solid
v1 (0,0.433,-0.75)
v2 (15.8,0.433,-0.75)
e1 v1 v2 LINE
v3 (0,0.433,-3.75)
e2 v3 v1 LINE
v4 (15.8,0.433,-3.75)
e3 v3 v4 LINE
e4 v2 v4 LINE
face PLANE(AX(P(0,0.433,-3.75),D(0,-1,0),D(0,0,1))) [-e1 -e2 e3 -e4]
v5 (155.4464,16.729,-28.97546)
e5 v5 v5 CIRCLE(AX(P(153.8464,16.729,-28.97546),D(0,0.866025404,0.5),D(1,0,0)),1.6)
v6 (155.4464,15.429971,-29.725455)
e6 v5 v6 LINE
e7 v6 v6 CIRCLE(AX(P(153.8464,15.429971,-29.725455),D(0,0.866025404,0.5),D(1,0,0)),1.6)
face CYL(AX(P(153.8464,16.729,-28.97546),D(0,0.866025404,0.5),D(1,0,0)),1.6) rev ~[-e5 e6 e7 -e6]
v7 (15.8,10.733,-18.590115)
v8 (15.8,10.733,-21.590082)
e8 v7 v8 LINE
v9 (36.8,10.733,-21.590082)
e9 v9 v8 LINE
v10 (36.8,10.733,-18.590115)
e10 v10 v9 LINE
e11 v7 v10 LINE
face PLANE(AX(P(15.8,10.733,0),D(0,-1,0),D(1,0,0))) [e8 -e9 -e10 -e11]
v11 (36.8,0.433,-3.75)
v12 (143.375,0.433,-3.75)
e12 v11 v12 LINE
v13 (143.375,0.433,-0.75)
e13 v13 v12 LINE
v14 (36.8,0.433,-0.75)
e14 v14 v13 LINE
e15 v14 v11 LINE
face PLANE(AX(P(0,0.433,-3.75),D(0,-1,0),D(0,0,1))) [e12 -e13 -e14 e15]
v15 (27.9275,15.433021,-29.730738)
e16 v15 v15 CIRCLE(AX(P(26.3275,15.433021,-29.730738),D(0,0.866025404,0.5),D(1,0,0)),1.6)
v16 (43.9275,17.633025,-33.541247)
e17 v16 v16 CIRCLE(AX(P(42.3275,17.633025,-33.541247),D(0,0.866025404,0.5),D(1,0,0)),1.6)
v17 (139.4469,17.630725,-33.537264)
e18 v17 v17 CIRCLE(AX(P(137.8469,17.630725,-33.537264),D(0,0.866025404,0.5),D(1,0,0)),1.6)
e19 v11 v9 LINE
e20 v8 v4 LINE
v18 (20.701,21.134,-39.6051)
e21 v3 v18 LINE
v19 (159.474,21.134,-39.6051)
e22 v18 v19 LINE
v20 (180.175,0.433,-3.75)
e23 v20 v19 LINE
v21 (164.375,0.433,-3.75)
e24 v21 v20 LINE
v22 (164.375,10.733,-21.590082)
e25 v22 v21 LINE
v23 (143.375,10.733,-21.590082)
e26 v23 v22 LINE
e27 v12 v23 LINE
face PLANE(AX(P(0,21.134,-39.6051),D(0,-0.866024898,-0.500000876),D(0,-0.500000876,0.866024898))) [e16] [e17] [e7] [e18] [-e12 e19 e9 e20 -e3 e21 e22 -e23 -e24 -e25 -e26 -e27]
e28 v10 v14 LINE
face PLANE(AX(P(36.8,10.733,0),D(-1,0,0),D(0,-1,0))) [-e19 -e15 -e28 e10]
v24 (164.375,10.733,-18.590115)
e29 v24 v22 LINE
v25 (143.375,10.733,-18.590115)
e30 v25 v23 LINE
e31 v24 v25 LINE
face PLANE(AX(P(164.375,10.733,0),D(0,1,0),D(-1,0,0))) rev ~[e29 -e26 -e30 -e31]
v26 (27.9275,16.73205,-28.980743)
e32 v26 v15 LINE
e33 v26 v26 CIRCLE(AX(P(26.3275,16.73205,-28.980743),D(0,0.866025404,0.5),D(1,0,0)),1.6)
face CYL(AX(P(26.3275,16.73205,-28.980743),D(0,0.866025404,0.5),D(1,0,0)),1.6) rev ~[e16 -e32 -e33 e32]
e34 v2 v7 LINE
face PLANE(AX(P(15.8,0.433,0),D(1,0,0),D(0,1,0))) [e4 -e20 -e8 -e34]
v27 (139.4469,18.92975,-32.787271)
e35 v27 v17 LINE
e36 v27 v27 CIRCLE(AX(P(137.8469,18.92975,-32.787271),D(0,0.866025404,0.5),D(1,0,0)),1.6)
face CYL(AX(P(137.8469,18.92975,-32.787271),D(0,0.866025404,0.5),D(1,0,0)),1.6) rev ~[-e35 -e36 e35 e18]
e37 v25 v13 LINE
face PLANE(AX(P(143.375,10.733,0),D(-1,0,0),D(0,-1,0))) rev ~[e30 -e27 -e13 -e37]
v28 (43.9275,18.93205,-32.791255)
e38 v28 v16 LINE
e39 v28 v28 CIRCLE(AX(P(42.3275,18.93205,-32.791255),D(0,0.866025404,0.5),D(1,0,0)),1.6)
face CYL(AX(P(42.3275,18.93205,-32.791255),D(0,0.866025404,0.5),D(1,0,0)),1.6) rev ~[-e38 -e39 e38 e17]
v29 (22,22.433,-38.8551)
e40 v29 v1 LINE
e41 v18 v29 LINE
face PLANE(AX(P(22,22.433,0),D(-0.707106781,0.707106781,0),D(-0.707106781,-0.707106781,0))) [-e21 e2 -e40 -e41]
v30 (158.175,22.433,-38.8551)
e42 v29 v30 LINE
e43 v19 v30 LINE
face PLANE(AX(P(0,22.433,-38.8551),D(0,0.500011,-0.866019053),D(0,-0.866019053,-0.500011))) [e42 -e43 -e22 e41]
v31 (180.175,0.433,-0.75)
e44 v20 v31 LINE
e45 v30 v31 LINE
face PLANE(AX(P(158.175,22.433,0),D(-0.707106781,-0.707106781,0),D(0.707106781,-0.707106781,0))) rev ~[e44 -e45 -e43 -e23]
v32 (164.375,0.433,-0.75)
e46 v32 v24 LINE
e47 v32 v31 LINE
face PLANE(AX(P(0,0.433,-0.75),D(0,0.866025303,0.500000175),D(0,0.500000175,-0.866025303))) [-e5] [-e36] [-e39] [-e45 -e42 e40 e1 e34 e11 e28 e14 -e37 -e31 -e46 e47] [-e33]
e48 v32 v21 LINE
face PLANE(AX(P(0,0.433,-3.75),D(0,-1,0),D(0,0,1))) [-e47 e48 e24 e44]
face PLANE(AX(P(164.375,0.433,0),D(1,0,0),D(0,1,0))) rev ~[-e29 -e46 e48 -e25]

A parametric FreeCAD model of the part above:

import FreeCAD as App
import Part
import Sketcher
Q = App.Units.Quantity

doc = App.newDocument("Part")
body = doc.addObject("PartDesign::Body", "Body")

sketch1 = body.newObject("Sketcher::SketchObject", "Sketch")
sketch1.AttachmentSupport = (doc.getObject("YZ_Plane"), [""])
sketch1.MapMode = "FlatFace"
sketch1.addGeometry(Part.LineSegment(App.Vector(22.4, -38.9, 0), App.Vector(0.4, -0.8, 0)), False)
sketch1.addGeometry(Part.LineSegment(App.Vector(0.4, -0.8, 0), App.Vector(0.4, -3.8, 0)), False)
sketch1.addGeometry(Part.LineSegment(App.Vector(0.4, -3.8, 0), App.Vector(21.1, -39.6, 0)), False)
sketch1.addGeometry(Part.LineSegment(App.Vector(21.1, -39.6, 0), App.Vector(22.4, -38.9, 0)), False)
sketch1.addConstraint(Sketcher.Constraint("Coincident", 0, 2, 1, 1))
sketch1.addConstraint(Sketcher.Constraint("Coincident", 1, 2, 2, 1))
sketch1.addConstraint(Sketcher.Constraint("Coincident", 2, 2, 3, 1))
sketch1.addConstraint(Sketcher.Constraint("Coincident", 3, 2, 0, 1))
sketch1.addConstraint(Sketcher.Constraint("Vertical", 1))
sketch1.addConstraint(Sketcher.Constraint("Parallel", 0, 2))
sketch1.addConstraint(Sketcher.Constraint("Perpendicular", 2, 3))
sketch1.addConstraint(Sketcher.Constraint("DistanceX", 1, 2, 3, 2, Q("22 mm")))
sketch1.addConstraint(Sketcher.Constraint("Distance", 3, Q("1.5 mm")))
sketch1.addConstraint(Sketcher.Constraint("DistanceY", 1, 2, 1, 1, Q("3 mm")))
sketch1.addConstraint(Sketcher.Constraint("DistanceY", 0, 2, -1, 1, Q("0.75 mm")))
sketch1.addConstraint(Sketcher.Constraint("DistanceX", -1, 1, 0, 2, Q("0.433 mm")))
pad1 = body.newObject("PartDesign::Pad", "Pad")
pad1.Profile = sketch1
pad1.Length = 180.175

sketch2 = body.newObject("Sketcher::SketchObject", "Sketch001")
sketch2.AttachmentSupport = (doc.getObject("XY_Plane"), [""])
sketch2.MapMode = "FlatFace"
sketch2.addGeometry(Part.LineSegment(App.Vector(37, 11, 0), App.Vector(37, 0, 0)), False)
sketch2.addGeometry(Part.LineSegment(App.Vector(37, 0, 0), App.Vector(16, 0, 0)), False)
sketch2.addGeometry(Part.LineSegment(App.Vector(16, 0, 0), App.Vector(16, 11, 0)), False)
sketch2.addGeometry(Part.LineSegment(App.Vector(16, 11, 0), App.Vector(37, 11, 0)), False)
sketch2.addGeometry(Part.LineSegment(App.Vector(22, 22, 0), App.Vector(0, 0, 0)), False)
sketch2.addGeometry(Part.LineSegment(App.Vector(0, 0, 0), App.Vector(0, 22, 0)), False)
sketch2.addGeometry(Part.LineSegment(App.Vector(0, 22, 0), App.Vector(22, 22, 0)), False)
sketch2.addGeometry(Part.LineSegment(App.Vector(164, 0, 0), App.Vector(143, 0, 0)), False)
sketch2.addGeometry(Part.LineSegment(App.Vector(143, 0, 0), App.Vector(143, 11, 0)), False)
sketch2.addGeometry(Part.LineSegment(App.Vector(143, 11, 0), App.Vector(164, 11, 0)), False)
sketch2.addGeometry(Part.LineSegment(App.Vector(164, 11, 0), App.Vector(164, 0, 0)), False)
sketch2.addGeometry(Part.LineSegment(App.Vector(180, 22, 0), App.Vector(180, 0, 0)), False)
sketch2.addGeometry(Part.LineSegment(App.Vector(180, 0, 0), App.Vector(158, 22, 0)), False)
sketch2.addGeometry(Part.LineSegment(App.Vector(158, 22, 0), App.Vector(180, 22, 0)), False)
sketch2.addConstraint(Sketcher.Constraint("Coincident", 0, 2, 1, 1))
sketch2.addConstraint(Sketcher.Constraint("Coincident", 1, 2, 2, 1))
sketch2.addConstraint(Sketcher.Constraint("Coincident", 2, 2, 3, 1))
sketch2.addConstraint(Sketcher.Constraint("Coincident", 3, 2, 0, 1))
sketch2.addConstraint(Sketcher.Constraint("Coincident", 4, 2, 5, 1))
sketch2.addConstraint(Sketcher.Constraint("Coincident", 5, 2, 6, 1))
sketch2.addConstraint(Sketcher.Constraint("Coincident", 6, 2, 4, 1))
sketch2.addConstraint(Sketcher.Constraint("Coincident", 7, 2, 8, 1))
sketch2.addConstraint(Sketcher.Constraint("Coincident", 8, 2, 9, 1))
sketch2.addConstraint(Sketcher.Constraint("Coincident", 9, 2, 10, 1))
sketch2.addConstraint(Sketcher.Constraint("Coincident", 10, 2, 7, 1))
sketch2.addConstraint(Sketcher.Constraint("Coincident", 11, 2, 12, 1))
sketch2.addConstraint(Sketcher.Constraint("Coincident", 12, 2, 13, 1))
sketch2.addConstraint(Sketcher.Constraint("Coincident", 13, 2, 11, 1))
sketch2.addConstraint(Sketcher.Constraint("Vertical", 0))
sketch2.addConstraint(Sketcher.Constraint("Horizontal", 1))
sketch2.addConstraint(Sketcher.Constraint("Vertical", 2))
sketch2.addConstraint(Sketcher.Constraint("Horizontal", 3))
sketch2.addConstraint(Sketcher.Constraint("Vertical", 5))
sketch2.addConstraint(Sketcher.Constraint("Horizontal", 6))
sketch2.addConstraint(Sketcher.Constraint("Horizontal", 7))
sketch2.addConstraint(Sketcher.Constraint("Vertical", 8))
sketch2.addConstraint(Sketcher.Constraint("Horizontal", 9))
sketch2.addConstraint(Sketcher.Constraint("Vertical", 10))
sketch2.addConstraint(Sketcher.Constraint("Vertical", 11))
sketch2.addConstraint(Sketcher.Constraint("Horizontal", 13))
sketch2.addConstraint(Sketcher.Constraint("PointOnObject", 4, 2, -2))
sketch2.addConstraint(Sketcher.Constraint("Perpendicular", 4, 12))
sketch2.addConstraint(Sketcher.Constraint("Horizontal", 1, 2, 4, 2))
sketch2.addConstraint(Sketcher.Constraint("Horizontal", 4, 2, 7, 2))
sketch2.addConstraint(Sketcher.Constraint("Horizontal", 3, 2, 8, 2))
sketch2.addConstraint(Sketcher.Constraint("Horizontal", 10, 2, 11, 2))
sketch2.addConstraint(Sketcher.Constraint("Horizontal", 6, 2, 12, 2))
sketch2.addConstraint(Sketcher.Constraint("Equal", 3, 7))
sketch2.addConstraint(Sketcher.Constraint("Equal", 6, 13))
sketch2.addConstraint(Sketcher.Constraint("DistanceX", 1, 2, 1, 1, Q("21 mm")))
sketch2.addConstraint(Sketcher.Constraint("DistanceY", 0, 2, 0, 1, Q("10.3 mm")))
sketch2.addConstraint(Sketcher.Constraint("DistanceX", -1, 1, 1, 2, Q("15.8 mm")))
sketch2.addConstraint(Sketcher.Constraint("DistanceX", 10, 2, 11, 2, Q("15.8 mm")))
sketch2.addConstraint(Sketcher.Constraint("DistanceX", 6, 1, 6, 2, Q("22 mm")))
sketch2.addConstraint(Sketcher.Constraint("DistanceY", -1, 1, 0, 2, Q("0.433 mm")))
sketch2.addConstraint(Sketcher.Constraint("DistanceX", -1, 1, 7, 2, Q("143.375 mm")))
pocket1 = body.newObject("PartDesign::Pocket", "Pocket")
pocket1.Profile = sketch2
pocket1.Type = "ThroughAll"

sketch3 = body.newObject("Sketcher::SketchObject", "Sketch002")
sketch3.Placement = App.Placement(App.Vector(22, 22, -38.1051), App.Rotation(App.Vector(1, 0, 0), App.Vector(0, 0.5, -0.866025404), App.Vector(0, 0.866025404, 0.5), "ZXY"))
sketch3.addGeometry(Part.Circle(App.Vector(20.3, -6.1, 0), App.Vector(0, 0, 1), 1.6), False)
sketch3.addGeometry(Part.Circle(App.Vector(4.3, -10.5, 0), App.Vector(0, 0, 1), 1.6), False)
sketch3.addGeometry(Part.Circle(App.Vector(131.8, -10.5, 0), App.Vector(0, 0, 1), 1.6), False)
sketch3.addGeometry(Part.Circle(App.Vector(115.8, -6.1, 0), App.Vector(0, 0, 1), 1.6), False)
sketch3.addConstraint(Sketcher.Constraint("Equal", 0, 1))
sketch3.addConstraint(Sketcher.Constraint("Equal", 1, 2))
sketch3.addConstraint(Sketcher.Constraint("Equal", 2, 3))
sketch3.addConstraint(Sketcher.Constraint("Diameter", 0, Q("3.2 mm")))
sketch3.addConstraint(Sketcher.Constraint("DistanceX", 1, 3, 0, 3, Q("16 mm")))
sketch3.addConstraint(Sketcher.Constraint("DistanceY", 1, 3, 0, 3, Q("4.4 mm")))
sketch3.addConstraint(Sketcher.Constraint("DistanceY", 0, 3, -1, 1, Q("6.136 mm")))
sketch3.addConstraint(Sketcher.Constraint("DistanceY", 2, 3, -1, 1, Q("10.542 mm")))
sketch3.addConstraint(Sketcher.Constraint("DistanceX", -1, 1, 3, 3, Q("115.847 mm")))
sketch3.addConstraint(Sketcher.Constraint("DistanceX", 0, 3, 2, 3, Q("111.519 mm")))
sketch3.addConstraint(Sketcher.Constraint("DistanceX", -1, 1, 0, 3, Q("20.3275 mm")))
sketch3.addConstraint(Sketcher.Constraint("DistanceY", 3, 3, -1, 1, Q("6.1405 mm")))
pocket2 = body.newObject("PartDesign::Pocket", "Pocket001")
pocket2.Profile = sketch3
pocket2.Type = "ThroughAll"

doc.recompute()
